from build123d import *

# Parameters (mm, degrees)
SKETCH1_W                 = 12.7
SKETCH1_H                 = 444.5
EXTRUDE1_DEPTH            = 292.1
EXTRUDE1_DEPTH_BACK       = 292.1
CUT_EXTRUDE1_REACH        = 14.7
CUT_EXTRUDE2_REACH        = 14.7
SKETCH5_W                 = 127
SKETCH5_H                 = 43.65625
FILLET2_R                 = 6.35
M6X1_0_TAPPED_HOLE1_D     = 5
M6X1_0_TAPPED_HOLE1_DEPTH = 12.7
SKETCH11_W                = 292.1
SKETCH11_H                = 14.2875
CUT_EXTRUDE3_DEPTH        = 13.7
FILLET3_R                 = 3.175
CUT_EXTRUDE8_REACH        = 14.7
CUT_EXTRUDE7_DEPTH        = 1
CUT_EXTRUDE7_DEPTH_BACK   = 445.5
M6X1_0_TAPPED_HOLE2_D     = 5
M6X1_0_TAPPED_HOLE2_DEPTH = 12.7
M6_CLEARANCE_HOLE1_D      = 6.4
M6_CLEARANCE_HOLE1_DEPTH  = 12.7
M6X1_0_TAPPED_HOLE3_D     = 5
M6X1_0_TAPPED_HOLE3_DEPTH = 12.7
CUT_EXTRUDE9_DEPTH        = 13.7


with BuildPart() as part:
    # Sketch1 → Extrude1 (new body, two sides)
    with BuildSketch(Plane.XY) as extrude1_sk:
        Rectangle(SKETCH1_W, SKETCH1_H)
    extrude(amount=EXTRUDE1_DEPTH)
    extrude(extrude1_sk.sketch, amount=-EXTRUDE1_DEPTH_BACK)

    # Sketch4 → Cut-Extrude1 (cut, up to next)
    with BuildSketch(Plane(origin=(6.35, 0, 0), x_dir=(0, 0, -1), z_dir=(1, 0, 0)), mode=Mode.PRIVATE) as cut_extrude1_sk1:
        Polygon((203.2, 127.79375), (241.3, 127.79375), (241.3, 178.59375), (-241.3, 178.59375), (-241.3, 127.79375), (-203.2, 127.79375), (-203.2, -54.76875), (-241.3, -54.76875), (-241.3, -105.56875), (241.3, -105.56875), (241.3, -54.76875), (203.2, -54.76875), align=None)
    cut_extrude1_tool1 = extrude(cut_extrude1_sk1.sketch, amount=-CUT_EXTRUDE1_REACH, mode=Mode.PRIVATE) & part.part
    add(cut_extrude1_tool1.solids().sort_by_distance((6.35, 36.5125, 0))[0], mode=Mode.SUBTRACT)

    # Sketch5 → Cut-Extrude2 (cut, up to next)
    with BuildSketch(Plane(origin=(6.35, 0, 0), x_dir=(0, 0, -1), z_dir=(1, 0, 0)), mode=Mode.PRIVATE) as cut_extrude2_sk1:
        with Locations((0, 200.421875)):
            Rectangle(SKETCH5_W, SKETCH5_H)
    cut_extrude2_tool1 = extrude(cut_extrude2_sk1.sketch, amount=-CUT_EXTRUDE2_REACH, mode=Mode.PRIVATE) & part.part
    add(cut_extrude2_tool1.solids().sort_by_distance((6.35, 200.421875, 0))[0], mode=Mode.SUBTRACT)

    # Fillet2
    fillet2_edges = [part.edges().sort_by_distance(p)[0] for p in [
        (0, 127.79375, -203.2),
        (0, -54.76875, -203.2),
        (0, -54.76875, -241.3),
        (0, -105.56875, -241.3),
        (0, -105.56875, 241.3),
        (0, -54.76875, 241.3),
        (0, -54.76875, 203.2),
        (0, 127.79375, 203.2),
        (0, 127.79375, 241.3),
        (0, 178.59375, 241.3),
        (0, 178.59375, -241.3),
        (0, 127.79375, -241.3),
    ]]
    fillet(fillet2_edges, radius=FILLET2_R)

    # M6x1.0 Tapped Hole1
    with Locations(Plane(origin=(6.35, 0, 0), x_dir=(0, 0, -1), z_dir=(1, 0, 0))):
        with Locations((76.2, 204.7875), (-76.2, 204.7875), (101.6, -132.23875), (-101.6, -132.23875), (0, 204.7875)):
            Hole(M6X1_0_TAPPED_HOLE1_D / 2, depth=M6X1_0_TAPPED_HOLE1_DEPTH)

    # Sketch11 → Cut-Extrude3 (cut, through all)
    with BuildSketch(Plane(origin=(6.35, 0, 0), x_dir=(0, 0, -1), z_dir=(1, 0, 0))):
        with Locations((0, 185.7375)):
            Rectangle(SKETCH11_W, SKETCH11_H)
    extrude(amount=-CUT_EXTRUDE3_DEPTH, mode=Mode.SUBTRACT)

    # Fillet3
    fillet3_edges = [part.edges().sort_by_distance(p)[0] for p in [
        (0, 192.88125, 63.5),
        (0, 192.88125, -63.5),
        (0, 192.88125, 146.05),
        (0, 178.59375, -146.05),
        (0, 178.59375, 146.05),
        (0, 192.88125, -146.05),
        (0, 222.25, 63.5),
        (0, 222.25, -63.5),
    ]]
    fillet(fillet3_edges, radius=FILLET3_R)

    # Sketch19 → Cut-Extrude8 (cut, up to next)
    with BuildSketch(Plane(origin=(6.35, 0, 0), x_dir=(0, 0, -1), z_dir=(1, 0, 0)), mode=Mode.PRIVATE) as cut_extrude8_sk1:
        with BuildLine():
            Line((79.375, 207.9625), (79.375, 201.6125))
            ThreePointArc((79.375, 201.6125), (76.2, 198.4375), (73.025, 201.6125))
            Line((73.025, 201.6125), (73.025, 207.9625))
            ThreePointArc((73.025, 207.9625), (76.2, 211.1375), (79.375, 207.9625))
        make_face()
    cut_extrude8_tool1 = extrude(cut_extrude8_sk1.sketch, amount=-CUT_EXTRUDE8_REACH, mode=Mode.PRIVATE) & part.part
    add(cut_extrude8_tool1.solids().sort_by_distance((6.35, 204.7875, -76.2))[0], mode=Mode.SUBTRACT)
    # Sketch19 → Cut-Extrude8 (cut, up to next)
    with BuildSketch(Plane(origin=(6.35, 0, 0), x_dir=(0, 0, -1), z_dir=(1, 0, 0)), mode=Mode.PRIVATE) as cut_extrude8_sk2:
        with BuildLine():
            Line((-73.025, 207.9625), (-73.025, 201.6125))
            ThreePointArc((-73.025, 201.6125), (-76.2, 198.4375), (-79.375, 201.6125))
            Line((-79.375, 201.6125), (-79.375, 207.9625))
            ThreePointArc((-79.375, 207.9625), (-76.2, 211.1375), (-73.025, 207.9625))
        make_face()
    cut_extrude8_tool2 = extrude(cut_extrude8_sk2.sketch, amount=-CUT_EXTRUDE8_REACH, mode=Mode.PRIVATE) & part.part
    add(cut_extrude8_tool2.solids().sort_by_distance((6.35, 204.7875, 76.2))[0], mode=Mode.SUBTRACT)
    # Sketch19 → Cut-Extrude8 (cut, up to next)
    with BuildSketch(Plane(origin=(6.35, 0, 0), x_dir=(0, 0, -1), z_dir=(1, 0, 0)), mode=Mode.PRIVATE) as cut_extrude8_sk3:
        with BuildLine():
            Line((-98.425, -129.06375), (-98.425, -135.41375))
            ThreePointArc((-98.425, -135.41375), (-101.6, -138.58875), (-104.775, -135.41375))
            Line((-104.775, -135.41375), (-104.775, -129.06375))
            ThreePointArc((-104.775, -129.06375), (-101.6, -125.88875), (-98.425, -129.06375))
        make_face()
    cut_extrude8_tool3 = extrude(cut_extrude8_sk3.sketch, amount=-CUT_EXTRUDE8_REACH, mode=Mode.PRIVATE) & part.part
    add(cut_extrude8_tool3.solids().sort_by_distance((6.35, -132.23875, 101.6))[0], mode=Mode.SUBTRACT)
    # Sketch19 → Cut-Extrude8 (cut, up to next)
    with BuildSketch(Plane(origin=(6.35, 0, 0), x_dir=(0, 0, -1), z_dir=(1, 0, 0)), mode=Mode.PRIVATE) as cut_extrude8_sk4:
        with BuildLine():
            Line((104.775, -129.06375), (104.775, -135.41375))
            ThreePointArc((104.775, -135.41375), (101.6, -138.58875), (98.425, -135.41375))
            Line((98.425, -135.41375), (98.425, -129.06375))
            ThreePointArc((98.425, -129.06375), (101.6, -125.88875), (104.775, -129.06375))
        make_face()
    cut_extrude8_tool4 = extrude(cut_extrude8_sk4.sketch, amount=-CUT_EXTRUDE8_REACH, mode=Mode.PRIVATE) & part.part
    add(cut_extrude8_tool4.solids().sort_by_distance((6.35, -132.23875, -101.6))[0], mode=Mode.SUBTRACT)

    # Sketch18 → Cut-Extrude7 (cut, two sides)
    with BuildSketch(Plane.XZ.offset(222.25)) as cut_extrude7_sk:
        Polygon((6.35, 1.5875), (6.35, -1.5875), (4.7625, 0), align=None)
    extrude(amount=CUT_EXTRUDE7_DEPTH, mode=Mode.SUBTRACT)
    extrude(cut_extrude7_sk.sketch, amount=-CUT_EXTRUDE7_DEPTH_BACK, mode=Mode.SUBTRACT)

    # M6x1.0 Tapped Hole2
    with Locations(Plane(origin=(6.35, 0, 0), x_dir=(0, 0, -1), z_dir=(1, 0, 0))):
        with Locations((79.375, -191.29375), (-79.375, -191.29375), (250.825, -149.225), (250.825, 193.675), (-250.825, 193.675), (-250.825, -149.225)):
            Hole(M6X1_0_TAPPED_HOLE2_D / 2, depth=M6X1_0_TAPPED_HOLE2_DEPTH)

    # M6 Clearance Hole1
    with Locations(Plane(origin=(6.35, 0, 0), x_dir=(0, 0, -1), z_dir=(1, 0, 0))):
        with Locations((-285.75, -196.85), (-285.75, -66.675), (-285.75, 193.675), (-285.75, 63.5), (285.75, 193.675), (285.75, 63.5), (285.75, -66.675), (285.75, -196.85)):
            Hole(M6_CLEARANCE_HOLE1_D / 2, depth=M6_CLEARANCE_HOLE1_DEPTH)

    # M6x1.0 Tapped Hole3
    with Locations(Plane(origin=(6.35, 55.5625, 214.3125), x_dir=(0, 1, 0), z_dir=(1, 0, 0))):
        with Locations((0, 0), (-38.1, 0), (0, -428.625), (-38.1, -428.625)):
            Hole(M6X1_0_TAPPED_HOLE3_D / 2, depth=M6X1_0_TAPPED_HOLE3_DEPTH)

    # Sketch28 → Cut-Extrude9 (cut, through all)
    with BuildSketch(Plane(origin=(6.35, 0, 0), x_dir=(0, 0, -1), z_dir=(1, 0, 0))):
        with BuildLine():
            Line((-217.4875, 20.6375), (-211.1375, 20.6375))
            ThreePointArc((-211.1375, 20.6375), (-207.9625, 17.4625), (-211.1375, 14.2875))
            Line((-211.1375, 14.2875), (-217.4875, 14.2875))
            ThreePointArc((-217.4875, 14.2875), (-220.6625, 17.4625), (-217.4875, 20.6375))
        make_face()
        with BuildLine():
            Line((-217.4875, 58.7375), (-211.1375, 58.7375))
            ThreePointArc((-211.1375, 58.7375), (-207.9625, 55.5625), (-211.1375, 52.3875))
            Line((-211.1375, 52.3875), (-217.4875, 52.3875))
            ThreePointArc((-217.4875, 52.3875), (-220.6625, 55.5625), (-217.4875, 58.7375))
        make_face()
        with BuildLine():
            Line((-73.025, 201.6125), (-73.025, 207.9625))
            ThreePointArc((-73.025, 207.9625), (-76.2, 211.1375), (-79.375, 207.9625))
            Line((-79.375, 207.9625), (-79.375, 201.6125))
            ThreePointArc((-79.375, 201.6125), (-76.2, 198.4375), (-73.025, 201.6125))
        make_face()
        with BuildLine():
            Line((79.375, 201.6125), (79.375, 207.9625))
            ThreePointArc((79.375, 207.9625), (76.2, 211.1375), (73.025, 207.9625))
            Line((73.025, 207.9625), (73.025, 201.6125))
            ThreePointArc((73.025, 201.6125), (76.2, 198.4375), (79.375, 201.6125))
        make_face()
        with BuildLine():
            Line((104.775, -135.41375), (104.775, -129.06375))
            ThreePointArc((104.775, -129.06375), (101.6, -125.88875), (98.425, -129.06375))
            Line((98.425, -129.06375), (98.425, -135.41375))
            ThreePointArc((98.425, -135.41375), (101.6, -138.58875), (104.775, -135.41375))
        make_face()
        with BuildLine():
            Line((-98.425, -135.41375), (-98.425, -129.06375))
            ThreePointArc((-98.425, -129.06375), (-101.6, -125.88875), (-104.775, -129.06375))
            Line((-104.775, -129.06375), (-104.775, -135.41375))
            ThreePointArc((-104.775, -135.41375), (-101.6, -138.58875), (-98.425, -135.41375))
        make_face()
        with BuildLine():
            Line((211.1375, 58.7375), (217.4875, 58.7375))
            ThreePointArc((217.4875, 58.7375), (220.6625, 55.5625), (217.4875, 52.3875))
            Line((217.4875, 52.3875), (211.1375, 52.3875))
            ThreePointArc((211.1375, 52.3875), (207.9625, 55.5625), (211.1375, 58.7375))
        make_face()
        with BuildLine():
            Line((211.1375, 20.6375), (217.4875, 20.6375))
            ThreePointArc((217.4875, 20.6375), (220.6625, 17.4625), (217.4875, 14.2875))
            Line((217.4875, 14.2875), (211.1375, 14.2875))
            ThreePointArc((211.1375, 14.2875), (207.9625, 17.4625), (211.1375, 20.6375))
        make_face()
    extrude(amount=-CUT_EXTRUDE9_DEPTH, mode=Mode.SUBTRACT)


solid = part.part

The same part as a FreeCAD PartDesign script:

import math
import FreeCAD as App
import Part
import Sketcher
from FreeCAD import Vector
Q = App.Units.Quantity


def edges_at(feature, points):
    """Names of the edges that pass closest to the given points."""
    edges = feature.Shape.Edges
    near = lambda p: min(range(len(edges)), key=lambda i: edges[i].distToShape(Part.Vertex(*p))[0])
    return sorted({f"Edge{near(p) + 1}" for p in points})

doc = App.newDocument("Part")
params = doc.addObject("Spreadsheet::Sheet", "Params")
for row, (alias, value) in enumerate([
    ("sketch1_width", "0.5 in"),
    ("sketch1_height", "17.5 in"),
    ("pad1_length", "11.5 in"),
    ("pad1_length2", "11.5 in"),
    ("sketch2_width", "2 in"),
    ("sketch2_height", "19 in"),
    ("sketch2_height2", "1.5 in"),
    ("sketch2_width2", "7.1875 in"),
    ("sketch3_height", "5 in"),
    ("sketch3_width", "1.71875 in"),
    ("fillet_radius", "0.25 in"),
    ("hole_diameter", "5 mm"),
    ("hole_depth", "0.5 in"),
    ("sketch5_height", "11.5 in"),
    ("sketch5_width", "0.5625 in"),
    ("fillet2_radius", "0.125 in"),
    ("sketch6_radius", "0.125 in"),
    ("sketch6_width", "0.25 in"),
    ("pocket4_length", "0.5 in"),
    ("sketch7_radius", "0.125 in"),
    ("sketch7_width", "0.25 in"),
    ("pocket5_length", "0.5 in"),
    ("sketch8_radius", "0.125 in"),
    ("sketch8_width", "0.25 in"),
    ("pocket6_length", "0.5 in"),
    ("sketch9_radius", "0.125 in"),
    ("sketch9_width", "0.25 in"),
    ("pocket7_length", "0.5 in"),
    ("sketch10_height", "0.125 in"),
    ("hole2_diameter", "5 mm"),
    ("hole2_depth", "0.5 in"),
    ("hole3_diameter", "6.4 mm"),
    ("hole3_depth", "0.5 in"),
    ("hole4_diameter", "5 mm"),
    ("hole4_depth", "0.5 in"),
    ("sketch14_radius", "0.125 in"),
    ("sketch14_width", "0.25 in"),
], start=1):
    params.set(f"A{row}", alias)
    params.set(f"B{row}", "=" + value)
    params.setAlias(f"B{row}", alias)

body = doc.addObject("PartDesign::Body", "Body")

sketch1 = body.newObject("Sketcher::SketchObject", "Sketch")
sketch1.AttachmentSupport = (doc.getObject("XY_Plane"), [""])
sketch1.MapMode = "FlatFace"
sketch1.addGeometry(Part.LineSegment(Vector(-6.35, 222.25, 0), Vector(-6.35, -222.25, 0)), False)
sketch1.addGeometry(Part.LineSegment(Vector(-6.35, -222.25, 0), Vector(6.35, -222.25, 0)), False)
sketch1.addGeometry(Part.LineSegment(Vector(6.35, -222.25, 0), Vector(6.35, 222.25, 0)), False)
sketch1.addGeometry(Part.LineSegment(Vector(6.35, 222.25, 0), Vector(-6.35, 222.25, 0)), False)
sketch1.addConstraint(Sketcher.Constraint("Coincident", 0, 2, 1, 1))
sketch1.addConstraint(Sketcher.Constraint("Coincident", 1, 2, 2, 1))
sketch1.addConstraint(Sketcher.Constraint("Coincident", 2, 2, 3, 1))
sketch1.addConstraint(Sketcher.Constraint("Coincident", 3, 2, 0, 1))
sketch1.addConstraint(Sketcher.Constraint("Vertical", 0))
sketch1.addConstraint(Sketcher.Constraint("Horizontal", 1))
sketch1.addConstraint(Sketcher.Constraint("Vertical", 2))
sketch1.addConstraint(Sketcher.Constraint("Horizontal", 3))
sketch1.addConstraint(Sketcher.Constraint("Symmetric", 0, 2, 2, 2, -1, 1))
sketch1.addConstraint(Sketcher.Constraint("DistanceX", 1, 1, 1, 2, Q("0.5 in")))
sketch1.addConstraint(Sketcher.Constraint("DistanceY", 0, 2, 0, 1, Q("17.5 in")))
sketch1.setExpression("Constraints[9]", "Params.sketch1_width")
sketch1.setExpression("Constraints[10]", "Params.sketch1_height")
pad1 = body.newObject("PartDesign::Pad", "Pad")
pad1.Profile = sketch1
pad1.Type = "TwoLengths"
pad1.setExpression("Length", "Params.pad1_length")
pad1.setExpression("Length2", "Params.pad1_length2")

sketch2 = body.newObject("Sketcher::SketchObject", "Sketch001")
sketch2.AttachmentSupport = (doc.getObject("YZ_Plane"), [""])
sketch2.MapMode = "FlatFace"
sketch2.AttachmentOffset = App.Placement(Vector(0, 0, 0.25 * 25.4), App.Rotation())
sketch2.addGeometry(Part.LineSegment(Vector(127.79375, -203.2, 0), Vector(127.79375, -241.3, 0)), False)
sketch2.addGeometry(Part.LineSegment(Vector(127.79375, -241.3, 0), Vector(178.59375, -241.3, 0)), False)
sketch2.addGeometry(Part.LineSegment(Vector(178.59375, -241.3, 0), Vector(178.59375, 241.3, 0)), False)
sketch2.addGeometry(Part.LineSegment(Vector(178.59375, 241.3, 0), Vector(127.79375, 241.3, 0)), False)
sketch2.addGeometry(Part.LineSegment(Vector(127.79375, 241.3, 0), Vector(127.79375, 203.2, 0)), False)
sketch2.addGeometry(Part.LineSegment(Vector(127.79375, 203.2, 0), Vector(-54.76875, 203.2, 0)), False)
sketch2.addGeometry(Part.LineSegment(Vector(-54.76875, 203.2, 0), Vector(-54.76875, 241.3, 0)), False)
sketch2.addGeometry(Part.LineSegment(Vector(-54.76875, 241.3, 0), Vector(-105.56875, 241.3, 0)), False)
sketch2.addGeometry(Part.LineSegment(Vector(-105.56875, 241.3, 0), Vector(-105.56875, -241.3, 0)), False)
sketch2.addGeometry(Part.LineSegment(Vector(-105.56875, -241.3, 0), Vector(-54.76875, -241.3, 0)), False)
sketch2.addGeometry(Part.LineSegment(Vector(-54.76875, -241.3, 0), Vector(-54.76875, -203.2, 0)), False)
sketch2.addGeometry(Part.LineSegment(Vector(-54.76875, -203.2, 0), Vector(127.79375, -203.2, 0)), False)
sketch2.addConstraint(Sketcher.Constraint("Coincident", 0, 2, 1, 1))
sketch2.addConstraint(Sketcher.Constraint("Coincident", 1, 2, 2, 1))
sketch2.addConstraint(Sketcher.Constraint("Coincident", 2, 2, 3, 1))
sketch2.addConstraint(Sketcher.Constraint("Coincident", 3, 2, 4, 1))
sketch2.addConstraint(Sketcher.Constraint("Coincident", 4, 2, 5, 1))
sketch2.addConstraint(Sketcher.Constraint("Coincident", 5, 2, 6, 1))
sketch2.addConstraint(Sketcher.Constraint("Coincident", 6, 2, 7, 1))
sketch2.addConstraint(Sketcher.Constraint("Coincident", 7, 2, 8, 1))
sketch2.addConstraint(Sketcher.Constraint("Coincident", 8, 2, 9, 1))
sketch2.addConstraint(Sketcher.Constraint("Coincident", 9, 2, 10, 1))
sketch2.addConstraint(Sketcher.Constraint("Coincident", 10, 2, 11, 1))
sketch2.addConstraint(Sketcher.Constraint("Coincident", 11, 2, 0, 1))
sketch2.addConstraint(Sketcher.Constraint("Vertical", 0))
sketch2.addConstraint(Sketcher.Constraint("Horizontal", 1))
sketch2.addConstraint(Sketcher.Constraint("Vertical", 2))
sketch2.addConstraint(Sketcher.Constraint("Horizontal", 3))
sketch2.addConstraint(Sketcher.Constraint("Vertical", 4))
sketch2.addConstraint(Sketcher.Constraint("Horizontal", 5))
sketch2.addConstraint(Sketcher.Constraint("Vertical", 6))
sketch2.addConstraint(Sketcher.Constraint("Horizontal", 7))
sketch2.addConstraint(Sketcher.Constraint("Vertical", 8))
sketch2.addConstraint(Sketcher.Constraint("Horizontal", 9))
sketch2.addConstraint(Sketcher.Constraint("Vertical", 10))
sketch2.addConstraint(Sketcher.Constraint("Horizontal", 11))
sketch2.addConstraint(Sketcher.Constraint("Symmetric", 0, 2, 3, 2, -1))
sketch2.addConstraint(Sketcher.Constraint("Symmetric", 6, 2, 9, 2, -1))
sketch2.addConstraint(Sketcher.Constraint("Horizontal", 3, 2, 6, 2))
sketch2.addConstraint(Sketcher.Constraint("Equal", 3, 7))
sketch2.addConstraint(Sketcher.Constraint("Equal", 0, 4))
sketch2.addConstraint(Sketcher.Constraint("DistanceX", 1, 1, 1, 2, Q("2 in")))
sketch2.addConstraint(Sketcher.Constraint("DistanceY", 2, 1, 2, 2, Q("19 in")))
sketch2.addConstraint(Sketcher.Constraint("DistanceY", 0, 2, 0, 1, Q("1.5 in")))
sketch2.addConstraint(Sketcher.Constraint("DistanceX", 5, 2, 5, 1, Q("7.1875 in")))
sketch2.addConstraint(Sketcher.Constraint("DistanceX", -1, 1, 0, 2, Q("5.03125 in")))
sketch2.setExpression("Constraints[29]", "Params.sketch2_width")
sketch2.setExpression("Constraints[30]", "Params.sketch2_height")
sketch2.setExpression("Constraints[31]", "Params.sketch2_height2")
sketch2.setExpression("Constraints[32]", "Params.sketch2_width2")
pocket1 = body.newObject("PartDesign::Pocket", "Pocket")
pocket1.Profile = sketch2
pocket1.Type = "UpToFirst"

sketch3 = body.newObject("Sketcher::SketchObject", "Sketch002")
sketch3.AttachmentSupport = (doc.getObject("YZ_Plane"), [""])
sketch3.MapMode = "FlatFace"
sketch3.AttachmentOffset = App.Placement(Vector(0, 0, 0.25 * 25.4), App.Rotation())
sketch3.addGeometry(Part.LineSegment(Vector(222.25, 63.5, 0), Vector(178.59375, 63.5, 0)), False)
sketch3.addGeometry(Part.LineSegment(Vector(178.59375, 63.5, 0), Vector(178.59375, -63.5, 0)), False)
sketch3.addGeometry(Part.LineSegment(Vector(178.59375, -63.5, 0), Vector(222.25, -63.5, 0)), False)
sketch3.addGeometry(Part.LineSegment(Vector(222.25, -63.5, 0), Vector(222.25, 63.5, 0)), False)
sketch3.addConstraint(Sketcher.Constraint("Coincident", 0, 2, 1, 1))
sketch3.addConstraint(Sketcher.Constraint("Coincident", 1, 2, 2, 1))
sketch3.addConstraint(Sketcher.Constraint("Coincident", 2, 2, 3, 1))
sketch3.addConstraint(Sketcher.Constraint("Coincident", 3, 2, 0, 1))
sketch3.addConstraint(Sketcher.Constraint("Horizontal", 0))
sketch3.addConstraint(Sketcher.Constraint("Vertical", 1))
sketch3.addConstraint(Sketcher.Constraint("Horizontal", 2))
sketch3.addConstraint(Sketcher.Constraint("Vertical", 3))
sketch3.addConstraint(Sketcher.Constraint("DistanceY", 1, 2, 1, 1, Q("5 in")))
sketch3.addConstraint(Sketcher.Constraint("DistanceY", -1, 1, 0, 2, Q("2.5 in")))
sketch3.addConstraint(Sketcher.Constraint("DistanceX", 0, 2, 0, 1, Q("1.71875 in")))
sketch3.addConstraint(Sketcher.Constraint("DistanceX", -1, 1, 2, 2, Q("8.75 in")))
sketch3.setExpression("Constraints[8]", "Params.sketch3_height")
sketch3.setExpression("Constraints[10]", "Params.sketch3_width")
pocket2 = body.newObject("PartDesign::Pocket", "Pocket001")
pocket2.Profile = sketch3
pocket2.Type = "UpToFirst"
doc.recompute()

fillet = body.newObject("PartDesign::Fillet", "Fillet")
fillet.Base = (pocket2, edges_at(pocket2, [
    (0, 127.794, -203.2),
    (0, -54.769, -203.2),
    (0, -54.769, -241.3),
    (0, -105.569, -241.3),
    (0, -105.569, 241.3),
    (0, -54.769, 241.3),
    (0, -54.769, 203.2),
    (0, 127.794, 203.2),
    (0, 127.794, 241.3),
    (0, 178.594, 241.3),
    (0, 178.594, -241.3),
    (0, 127.794, -241.3),
]))
fillet.setExpression("Radius", "Params.fillet_radius")

sketch4 = body.newObject("Sketcher::SketchObject", "Sketch003")
sketch4.AttachmentSupport = (doc.getObject("YZ_Plane"), [""])
sketch4.MapMode = "FlatFace"
sketch4.AttachmentOffset = App.Placement(Vector(0, 0, 0.25 * 25.4), App.Rotation())
sketch4.addGeometry(Part.Circle(Vector(204.7875, -76.2, 0), Vector(0, 0, 1), 2.5), False)
sketch4.addGeometry(Part.Circle(Vector(204.7875, 76.2, 0), Vector(0, 0, 1), 2.5), False)
sketch4.addGeometry(Part.Circle(Vector(-132.23875, -101.6, 0), Vector(0, 0, 1), 2.5), False)
sketch4.addGeometry(Part.Circle(Vector(-132.23875, 101.6, 0), Vector(0, 0, 1), 2.5), False)
sketch4.addGeometry(Part.Circle(Vector(204.7875, 0, 0), Vector(0, 0, 1), 2.5), False)
sketch4.addConstraint(Sketcher.Constraint("Equal", 0, 1))
sketch4.addConstraint(Sketcher.Constraint("Equal", 1, 2))
sketch4.addConstraint(Sketcher.Constraint("Equal", 2, 3))
sketch4.addConstraint(Sketcher.Constraint("Equal", 3, 4))
sketch4.addConstraint(Sketcher.Constraint("Symmetric", 0, 3, 1, 3, -1))
sketch4.addConstraint(Sketcher.Constraint("Symmetric", 2, 3, 3, 3, -1))
sketch4.addConstraint(Sketcher.Constraint("PointOnObject", 4, 3, -1))
sketch4.addConstraint(Sketcher.Constraint("Vertical", 1, 3, 4, 3))
sketch4.addConstraint(Sketcher.Constraint("DistanceY", 0, 3, -1, 1, Q("3 in")))
sketch4.addConstraint(Sketcher.Constraint("DistanceY", 2, 3, -1, 1, Q("4 in")))
sketch4.addConstraint(Sketcher.Constraint("Diameter", 0, 5.0))
sketch4.addConstraint(Sketcher.Constraint("DistanceX", -1, 1, 0, 3, Q("8.0625 in")))
sketch4.addConstraint(Sketcher.Constraint("DistanceX", 2, 3, -1, 1, 132.23875))
doc.recompute()
hole = body.newObject("PartDesign::Hole", "Hole")
hole.Profile = sketch4
hole.ThreadType = "None"
hole.setExpression("Diameter", "Params.hole_diameter")
hole.DepthType = "Dimension"
hole.setExpression("Depth", "Params.hole_depth")
hole.DrillPoint = "Flat"

sketch5 = body.newObject("Sketcher::SketchObject", "Sketch004")
sketch5.AttachmentSupport = (doc.getObject("YZ_Plane"), [""])
sketch5.MapMode = "FlatFace"
sketch5.AttachmentOffset = App.Placement(Vector(0, 0, 0.25 * 25.4), App.Rotation())
sketch5.addGeometry(Part.LineSegment(Vector(192.88125, 146.05, 0), Vector(178.59375, 146.05, 0)), False)
sketch5.addGeometry(Part.LineSegment(Vector(178.59375, 146.05, 0), Vector(178.59375, -146.05, 0)), False)
sketch5.addGeometry(Part.LineSegment(Vector(178.59375, -146.05, 0), Vector(192.88125, -146.05, 0)), False)
sketch5.addGeometry(Part.LineSegment(Vector(192.88125, -146.05, 0), Vector(192.88125, 146.05, 0)), False)
sketch5.addConstraint(Sketcher.Constraint("Coincident", 0, 2, 1, 1))
sketch5.addConstraint(Sketcher.Constraint("Coincident", 1, 2, 2, 1))
sketch5.addConstraint(Sketcher.Constraint("Coincident", 2, 2, 3, 1))
sketch5.addConstraint(Sketcher.Constraint("Coincident", 3, 2, 0, 1))
sketch5.addConstraint(Sketcher.Constraint("Horizontal", 0))
sketch5.addConstraint(Sketcher.Constraint("Vertical", 1))
sketch5.addConstraint(Sketcher.Constraint("Horizontal", 2))
sketch5.addConstraint(Sketcher.Constraint("Vertical", 3))
sketch5.addConstraint(Sketcher.Constraint("DistanceY", 1, 2, 1, 1, Q("11.5 in")))
sketch5.addConstraint(Sketcher.Constraint("DistanceX", 0, 2, 0, 1, Q("0.5625 in")))
sketch5.addConstraint(Sketcher.Constraint("DistanceY", -1, 1, 0, 2, Q("5.75 in")))
sketch5.addConstraint(Sketcher.Constraint("DistanceX", -1, 1, 0, 2, Q("7.03125 in")))
sketch5.setExpression("Constraints[8]", "Params.sketch5_height")
sketch5.setExpression("Constraints[9]", "Params.sketch5_width")
pocket3 = body.newObject("PartDesign::Pocket", "Pocket002")
pocket3.Profile = sketch5
pocket3.Type = "ThroughAll"
doc.recompute()

fillet2 = body.newObject("PartDesign::Fillet", "Fillet001")
fillet2.Base = (pocket3, edges_at(pocket3, [
    (0, 192.881, 63.5),
    (0, 192.881, -63.5),
    (0, 192.881, 146.05),
    (0, 178.594, -146.05),
    (0, 178.594, 146.05),
    (0, 192.881, -146.05),
    (0, 222.25, 63.5),
    (0, 222.25, -63.5),
]))
fillet2.setExpression("Radius", "Params.fillet2_radius")

sketch6 = body.newObject("Sketcher::SketchObject", "Sketch005")
sketch6.AttachmentSupport = (doc.getObject("YZ_Plane"), [""])
sketch6.MapMode = "FlatFace"
sketch6.AttachmentOffset = App.Placement(Vector(0, 0, 0.25 * 25.4), App.Rotation())
sketch6.addGeometry(Part.LineSegment(Vector(201.6125, -79.375, 0), Vector(207.9625, -79.375, 0)), False)
sketch6.addGeometry(Part.ArcOfCircle(Part.Circle(Vector(207.9625, -76.2, 0), Vector(0, 0, 1), 3.175), math.radians(-90), math.radians(90)), False)
sketch6.addGeometry(Part.LineSegment(Vector(207.9625, -73.025, 0), Vector(201.6125, -73.025, 0)), False)
sketch6.addGeometry(Part.ArcOfCircle(Part.Circle(Vector(201.6125, -76.2, 0), Vector(0, 0, 1), 3.175), math.radians(90), math.radians(270)), False)
sketch6.addConstraint(Sketcher.Constraint("Tangent", 0, 2, 1, 1))
sketch6.addConstraint(Sketcher.Constraint("Tangent", 1, 2, 2, 1))
sketch6.addConstraint(Sketcher.Constraint("Tangent", 2, 2, 3, 1))
sketch6.addConstraint(Sketcher.Constraint("Tangent", 3, 2, 0, 1))
sketch6.addConstraint(Sketcher.Constraint("Horizontal", 0))
sketch6.addConstraint(Sketcher.Constraint("Horizontal", 2))
sketch6.addConstraint(Sketcher.Constraint("DistanceY", 1, 3, -1, 1, Q("3 in")))
sketch6.addConstraint(Sketcher.Constraint("Radius", 1, Q("0.125 in")))
sketch6.addConstraint(Sketcher.Constraint("DistanceX", 0, 1, 0, 2, Q("0.25 in")))
sketch6.addConstraint(Sketcher.Constraint("DistanceX", -1, 1, 1, 3, Q("8.1875 in")))
sketch6.setExpression("Constraints[7]", "Params.sketch6_radius")
sketch6.setExpression("Constraints[8]", "Params.sketch6_width")
pocket4 = body.newObject("PartDesign::Pocket", "Pocket003")
pocket4.Profile = sketch6
pocket4.setExpression("Length", "Params.pocket4_length")

sketch7 = body.newObject("Sketcher::SketchObject", "Sketch006")
sketch7.AttachmentSupport = (doc.getObject("YZ_Plane"), [""])
sketch7.MapMode = "FlatFace"
sketch7.AttachmentOffset = App.Placement(Vector(0, 0, 0.25 * 25.4), App.Rotation())
sketch7.addGeometry(Part.LineSegment(Vector(201.6125, 73.025, 0), Vector(207.9625, 73.025, 0)), False)
sketch7.addGeometry(Part.ArcOfCircle(Part.Circle(Vector(207.9625, 76.2, 0), Vector(0, 0, 1), 3.175), math.radians(-90), math.radians(90)), False)
sketch7.addGeometry(Part.LineSegment(Vector(207.9625, 79.375, 0), Vector(201.6125, 79.375, 0)), False)
sketch7.addGeometry(Part.ArcOfCircle(Part.Circle(Vector(201.6125, 76.2, 0), Vector(0, 0, 1), 3.175), math.radians(90), math.radians(270)), False)
sketch7.addConstraint(Sketcher.Constraint("Tangent", 0, 2, 1, 1))
sketch7.addConstraint(Sketcher.Constraint("Tangent", 1, 2, 2, 1))
sketch7.addConstraint(Sketcher.Constraint("Tangent", 2, 2, 3, 1))
sketch7.addConstraint(Sketcher.Constraint("Tangent", 3, 2, 0, 1))
sketch7.addConstraint(Sketcher.Constraint("Horizontal", 0))
sketch7.addConstraint(Sketcher.Constraint("Horizontal", 2))
sketch7.addConstraint(Sketcher.Constraint("DistanceY", -1, 1, 1, 3, Q("3 in")))
sketch7.addConstraint(Sketcher.Constraint("Radius", 1, Q("0.125 in")))
sketch7.addConstraint(Sketcher.Constraint("DistanceX", 0, 1, 0, 2, Q("0.25 in")))
sketch7.addConstraint(Sketcher.Constraint("DistanceX", -1, 1, 1, 3, Q("8.1875 in")))
sketch7.setExpression("Constraints[7]", "Params.sketch7_radius")
sketch7.setExpression("Constraints[8]", "Params.sketch7_width")
pocket5 = body.newObject("PartDesign::Pocket", "Pocket004")
pocket5.Profile = sketch7
pocket5.setExpression("Length", "Params.pocket5_length")

sketch8 = body.newObject("Sketcher::SketchObject", "Sketch007")
sketch8.AttachmentSupport = (doc.getObject("YZ_Plane"), [""])
sketch8.MapMode = "FlatFace"
sketch8.AttachmentOffset = App.Placement(Vector(0, 0, 0.25 * 25.4), App.Rotation())
sketch8.addGeometry(Part.LineSegment(Vector(-135.41375, 98.425, 0), Vector(-129.06375, 98.425, 0)), False)
sketch8.addGeometry(Part.ArcOfCircle(Part.Circle(Vector(-129.06375, 101.6, 0), Vector(0, 0, 1), 3.175), math.radians(-90), math.radians(90)), False)
sketch8.addGeometry(Part.LineSegment(Vector(-129.06375, 104.775, 0), Vector(-135.41375, 104.775, 0)), False)
sketch8.addGeometry(Part.ArcOfCircle(Part.Circle(Vector(-135.41375, 101.6, 0), Vector(0, 0, 1), 3.175), math.radians(90), math.radians(270)), False)
sketch8.addConstraint(Sketcher.Constraint("Tangent", 0, 2, 1, 1))
sketch8.addConstraint(Sketcher.Constraint("Tangent", 1, 2, 2, 1))
sketch8.addConstraint(Sketcher.Constraint("Tangent", 2, 2, 3, 1))
sketch8.addConstraint(Sketcher.Constraint("Tangent", 3, 2, 0, 1))
sketch8.addConstraint(Sketcher.Constraint("Horizontal", 0))
sketch8.addConstraint(Sketcher.Constraint("Horizontal", 2))
sketch8.addConstraint(Sketcher.Constraint("DistanceY", -1, 1, 1, 3, Q("4 in")))
sketch8.addConstraint(Sketcher.Constraint("Radius", 1, Q("0.125 in")))
sketch8.addConstraint(Sketcher.Constraint("DistanceX", 0, 1, 0, 2, Q("0.25 in")))
sketch8.addConstraint(Sketcher.Constraint("DistanceX", 1, 3, -1, 1, 129.06375))
sketch8.setExpression("Constraints[7]", "Params.sketch8_radius")
sketch8.setExpression("Constraints[8]", "Params.sketch8_width")
pocket6 = body.newObject("PartDesign::Pocket", "Pocket005")
pocket6.Profile = sketch8
pocket6.setExpression("Length", "Params.pocket6_length")

sketch9 = body.newObject("Sketcher::SketchObject", "Sketch008")
sketch9.AttachmentSupport = (doc.getObject("YZ_Plane"), [""])
sketch9.MapMode = "FlatFace"
sketch9.AttachmentOffset = App.Placement(Vector(0, 0, 0.25 * 25.4), App.Rotation())
sketch9.addGeometry(Part.LineSegment(Vector(-135.41375, -104.775, 0), Vector(-129.06375, -104.775, 0)), False)
sketch9.addGeometry(Part.ArcOfCircle(Part.Circle(Vector(-129.06375, -101.6, 0), Vector(0, 0, 1), 3.175), math.radians(-90), math.radians(90)), False)
sketch9.addGeometry(Part.LineSegment(Vector(-129.06375, -98.425, 0), Vector(-135.41375, -98.425, 0)), False)
sketch9.addGeometry(Part.ArcOfCircle(Part.Circle(Vector(-135.41375, -101.6, 0), Vector(0, 0, 1), 3.175), math.radians(90), math.radians(270)), False)
sketch9.addConstraint(Sketcher.Constraint("Tangent", 0, 2, 1, 1))
sketch9.addConstraint(Sketcher.Constraint("Tangent", 1, 2, 2, 1))
sketch9.addConstraint(Sketcher.Constraint("Tangent", 2, 2, 3, 1))
sketch9.addConstraint(Sketcher.Constraint("Tangent", 3, 2, 0, 1))
sketch9.addConstraint(Sketcher.Constraint("Horizontal", 0))
sketch9.addConstraint(Sketcher.Constraint("Horizontal", 2))
sketch9.addConstraint(Sketcher.Constraint("DistanceY", 1, 3, -1, 1, Q("4 in")))
sketch9.addConstraint(Sketcher.Constraint("Radius", 1, Q("0.125 in")))
sketch9.addConstraint(Sketcher.Constraint("DistanceX", 0, 1, 0, 2, Q("0.25 in")))
sketch9.addConstraint(Sketcher.Constraint("DistanceX", 1, 3, -1, 1, 129.06375))
sketch9.setExpression("Constraints[7]", "Params.sketch9_radius")
sketch9.setExpression("Constraints[8]", "Params.sketch9_width")
pocket7 = body.newObject("PartDesign::Pocket", "Pocket006")
pocket7.Profile = sketch9
pocket7.setExpression("Length", "Params.pocket7_length")

sketch10 = body.newObject("Sketcher::SketchObject", "Sketch009")
sketch10.AttachmentSupport = (doc.getObject("XZ_Plane"), [""])
sketch10.MapMode = "FlatFace"
sketch10.AttachmentOffset = App.Placement(Vector(0, 0, 8.75 * 25.4), App.Rotation())
sketch10.addGeometry(Part.LineSegment(Vector(6.35, -1.5875, 0), Vector(6.35, 1.5875, 0)), False)
sketch10.addGeometry(Part.LineSegment(Vector(6.35, 1.5875, 0), Vector(4.7625, 0, 0)), False)
sketch10.addGeometry(Part.LineSegment(Vector(4.7625, 0, 0), Vector(6.35, -1.5875, 0)), False)
sketch10.addConstraint(Sketcher.Constraint("Coincident", 0, 2, 1, 1))
sketch10.addConstraint(Sketcher.Constraint("Coincident", 1, 2, 2, 1))
sketch10.addConstraint(Sketcher.Constraint("Coincident", 2, 2, 0, 1))
sketch10.addConstraint(Sketcher.Constraint("Vertical", 0))
sketch10.addConstraint(Sketcher.Constraint("PointOnObject", 1, 2, -1))
sketch10.addConstraint(Sketcher.Constraint("Perpendicular", 1, 2))
sketch10.addConstraint(Sketcher.Constraint("Equal", 1, 2))
sketch10.addConstraint(Sketcher.Constraint("DistanceY", 0, 1, 0, 2, Q("0.125 in")))
sketch10.addConstraint(Sketcher.Constraint("DistanceX", -1, 1, 0, 2, Q("0.25 in")))
sketch10.setExpression("Constraints[7]", "Params.sketch10_height")
pocket8 = body.newObject("PartDesign::Pocket", "Pocket007")
pocket8.Profile = sketch10
pocket8.Type = "ThroughAll"
pocket8.Midplane = True

sketch11 = body.newObject("Sketcher::SketchObject", "Sketch010")
sketch11.AttachmentSupport = (doc.getObject("YZ_Plane"), [""])
sketch11.MapMode = "FlatFace"
sketch11.AttachmentOffset = App.Placement(Vector(0, 0, 0.25 * 25.4), App.Rotation())
sketch11.addGeometry(Part.Circle(Vector(-191.29375, -79.375, 0), Vector(0, 0, 1), 2.5), False)
sketch11.addGeometry(Part.Circle(Vector(-191.29375, 79.375, 0), Vector(0, 0, 1), 2.5), False)
sketch11.addGeometry(Part.Circle(Vector(-149.225, -250.825, 0), Vector(0, 0, 1), 2.5), False)
sketch11.addGeometry(Part.Circle(Vector(193.675, -250.825, 0), Vector(0, 0, 1), 2.5), False)
sketch11.addGeometry(Part.Circle(Vector(193.675, 250.825, 0), Vector(0, 0, 1), 2.5), False)
sketch11.addGeometry(Part.Circle(Vector(-149.225, 250.825, 0), Vector(0, 0, 1), 2.5), False)
sketch11.addConstraint(Sketcher.Constraint("Equal", 0, 1))
sketch11.addConstraint(Sketcher.Constraint("Equal", 1, 2))
sketch11.addConstraint(Sketcher.Constraint("Equal", 2, 3))
sketch11.addConstraint(Sketcher.Constraint("Equal", 3, 4))
sketch11.addConstraint(Sketcher.Constraint("Equal", 4, 5))
sketch11.addConstraint(Sketcher.Constraint("Symmetric", 0, 3, 1, 3, -1))
sketch11.addConstraint(Sketcher.Constraint("Symmetric", 3, 3, 4, 3, -1))
sketch11.addConstraint(Sketcher.Constraint("Symmetric", 2, 3, 5, 3, -1))
sketch11.addConstraint(Sketcher.Constraint("Horizontal", 2, 3, 3, 3))
sketch11.addConstraint(Sketcher.Constraint("DistanceY", 2, 3, 1, 3, Q("13 in")))
sketch11.addConstraint(Sketcher.Constraint("DistanceX", 2, 3, 3, 3, Q("13.5 in")))
sketch11.addConstraint(Sketcher.Constraint("Diameter", 0, 5.0))
sketch11.addConstraint(Sketcher.Constraint("DistanceY", 0, 3, 1, 3, Q("6.25 in")))
sketch11.addConstraint(Sketcher.Constraint("DistanceX", 0, 3, -1, 1, Q("7.53125 in")))
sketch11.addConstraint(Sketcher.Constraint("DistanceX", 2, 3, -1, 1, Q("5.875 in")))
doc.recompute()
hole2 = body.newObject("PartDesign::Hole", "Hole001")
hole2.Profile = sketch11
hole2.ThreadType = "None"
hole2.setExpression("Diameter", "Params.hole2_diameter")
hole2.DepthType = "Dimension"
hole2.setExpression("Depth", "Params.hole2_depth")
hole2.DrillPoint = "Flat"

sketch12 = body.newObject("Sketcher::SketchObject", "Sketch011")
sketch12.AttachmentSupport = (doc.getObject("YZ_Plane"), [""])
sketch12.MapMode = "FlatFace"
sketch12.AttachmentOffset = App.Placement(Vector(0, 0, 0.25 * 25.4), App.Rotation())
sketch12.addGeometry(Part.Circle(Vector(-196.85, 285.75, 0), Vector(0, 0, 1), 3.2), False)
sketch12.addGeometry(Part.Circle(Vector(-66.675, 285.75, 0), Vector(0, 0, 1), 3.2), False)
sketch12.addGeometry(Part.Circle(Vector(193.675, 285.75, 0), Vector(0, 0, 1), 3.2), False)
sketch12.addGeometry(Part.Circle(Vector(63.5, 285.75, 0), Vector(0, 0, 1), 3.2), False)
sketch12.addGeometry(Part.Circle(Vector(193.675, -285.75, 0), Vector(0, 0, 1), 3.2), False)
sketch12.addGeometry(Part.Circle(Vector(63.5, -285.75, 0), Vector(0, 0, 1), 3.2), False)
sketch12.addGeometry(Part.Circle(Vector(-66.675, -285.75, 0), Vector(0, 0, 1), 3.2), False)
sketch12.addGeometry(Part.Circle(Vector(-196.85, -285.75, 0), Vector(0, 0, 1), 3.2), False)
sketch12.addConstraint(Sketcher.Constraint("Equal", 0, 1))
sketch12.addConstraint(Sketcher.Constraint("Equal", 1, 2))
sketch12.addConstraint(Sketcher.Constraint("Equal", 2, 3))
sketch12.addConstraint(Sketcher.Constraint("Equal", 3, 4))
sketch12.addConstraint(Sketcher.Constraint("Equal", 4, 5))
sketch12.addConstraint(Sketcher.Constraint("Equal", 5, 6))
sketch12.addConstraint(Sketcher.Constraint("Equal", 6, 7))
sketch12.addConstraint(Sketcher.Constraint("Symmetric", 2, 3, 4, 3, -1))
sketch12.addConstraint(Sketcher.Constraint("Symmetric", 3, 3, 5, 3, -1))
sketch12.addConstraint(Sketcher.Constraint("Symmetric", 1, 3, 6, 3, -1))
sketch12.addConstraint(Sketcher.Constraint("Symmetric", 0, 3, 7, 3, -1))
sketch12.addConstraint(Sketcher.Constraint("Horizontal", 0, 3, 1, 3))
sketch12.addConstraint(Sketcher.Constraint("Horizontal", 1, 3, 2, 3))
sketch12.addConstraint(Sketcher.Constraint("Horizontal", 2, 3, 3, 3))
sketch12.addConstraint(Sketcher.Constraint("DistanceX", -1, 1, 3, 3, Q("2.5 in")))
sketch12.addConstraint(Sketcher.Constraint("DistanceY", 4, 3, 2, 3, Q("22.5 in")))
sketch12.addConstraint(Sketcher.Constraint("Diameter", 0, 6.4))
sketch12.addConstraint(Sketcher.Constraint("DistanceX", 0, 3, -1, 1, Q("7.75 in")))
sketch12.addConstraint(Sketcher.Constraint("DistanceX", 1, 3, 2, 3, Q("10.25 in")))
sketch12.addConstraint(Sketcher.Constraint("DistanceX", 1, 3, -1, 1, Q("2.625 in")))
doc.recompute()
hole3 = body.newObject("PartDesign::Hole", "Hole002")
hole3.Profile = sketch12
hole3.ThreadType = "None"
hole3.setExpression("Diameter", "Params.hole3_diameter")
hole3.DepthType = "Dimension"
hole3.setExpression("Depth", "Params.hole3_depth")
hole3.DrillPoint = "Flat"

sketch13 = body.newObject("Sketcher::SketchObject", "Sketch012")
sketch13.AttachmentSupport = (doc.getObject("YZ_Plane"), [""])
sketch13.MapMode = "FlatFace"
sketch13.AttachmentOffset = App.Placement(Vector(0, 0, 0.25 * 25.4), App.Rotation())
sketch13.addGeometry(Part.Circle(Vector(55.5625, 214.3125, 0), Vector(0, 0, 1), 2.5), False)
sketch13.addGeometry(Part.Circle(Vector(17.4625, 214.3125, 0), Vector(0, 0, 1), 2.5), False)
sketch13.addGeometry(Part.Circle(Vector(55.5625, -214.3125, 0), Vector(0, 0, 1), 2.5), False)
sketch13.addGeometry(Part.Circle(Vector(17.4625, -214.3125, 0), Vector(0, 0, 1), 2.5), False)
sketch13.addConstraint(Sketcher.Constraint("Equal", 0, 1))
sketch13.addConstraint(Sketcher.Constraint("Equal", 1, 2))
sketch13.addConstraint(Sketcher.Constraint("Equal", 2, 3))
sketch13.addConstraint(Sketcher.Constraint("Symmetric", 0, 3, 2, 3, -1))
sketch13.addConstraint(Sketcher.Constraint("Symmetric", 1, 3, 3, 3, -1))
sketch13.addConstraint(Sketcher.Constraint("Horizontal", 0, 3, 1, 3))
sketch13.addConstraint(Sketcher.Constraint("DistanceX", 1, 3, 0, 3, Q("1.5 in")))
sketch13.addConstraint(Sketcher.Constraint("Diameter", 0, 5.0))
sketch13.addConstraint(Sketcher.Constraint("DistanceX", -1, 1, 0, 3, Q("2.1875 in")))
sketch13.addConstraint(Sketcher.Constraint("DistanceY", -1, 1, 0, 3, Q("8.4375 in")))
doc.recompute()
hole4 = body.newObject("PartDesign::Hole", "Hole003")
hole4.Profile = sketch13
hole4.ThreadType = "None"
hole4.setExpression("Diameter", "Params.hole4_diameter")
hole4.DepthType = "Dimension"
hole4.setExpression("Depth", "Params.hole4_depth")
hole4.DrillPoint = "Flat"

sketch14 = body.newObject("Sketcher::SketchObject", "Sketch013")
sketch14.AttachmentSupport = (doc.getObject("YZ_Plane"), [""])
sketch14.MapMode = "FlatFace"
sketch14.AttachmentOffset = App.Placement(Vector(0, 0, 0.25 * 25.4), App.Rotation())
sketch14.addGeometry(Part.LineSegment(Vector(20.6375, 211.1375, 0), Vector(20.6375, 217.4875, 0)), False)
sketch14.addGeometry(Part.ArcOfCircle(Part.Circle(Vector(17.4625, 217.4875, 0), Vector(0, 0, 1), 3.175), math.radians(0), math.radians(180)), False)
sketch14.addGeometry(Part.LineSegment(Vector(14.2875, 217.4875, 0), Vector(14.2875, 211.1375, 0)), False)
sketch14.addGeometry(Part.ArcOfCircle(Part.Circle(Vector(17.4625, 211.1375, 0), Vector(0, 0, 1), 3.175), math.radians(180), math.radians(360)), False)
sketch14.addGeometry(Part.LineSegment(Vector(58.7375, 211.1375, 0), Vector(58.7375, 217.4875, 0)), False)
sketch14.addGeometry(Part.ArcOfCircle(Part.Circle(Vector(55.5625, 217.4875, 0), Vector(0, 0, 1), 3.175), math.radians(0), math.radians(180)), False)
sketch14.addGeometry(Part.LineSegment(Vector(52.3875, 217.4875, 0), Vector(52.3875, 211.1375, 0)), False)
sketch14.addGeometry(Part.ArcOfCircle(Part.Circle(Vector(55.5625, 211.1375, 0), Vector(0, 0, 1), 3.175), math.radians(180), math.radians(360)), False)
sketch14.addGeometry(Part.LineSegment(Vector(201.6125, 73.025, 0), Vector(207.9625, 73.025, 0)), False)
sketch14.addGeometry(Part.ArcOfCircle(Part.Circle(Vector(207.9625, 76.2, 0), Vector(0, 0, 1), 3.175), math.radians(-90), math.radians(90)), False)
sketch14.addGeometry(Part.LineSegment(Vector(207.9625, 79.375, 0), Vector(201.6125, 79.375, 0)), False)
sketch14.addGeometry(Part.ArcOfCircle(Part.Circle(Vector(201.6125, 76.2, 0), Vector(0, 0, 1), 3.175), math.radians(90), math.radians(270)), False)
sketch14.addGeometry(Part.LineSegment(Vector(201.6125, -79.375, 0), Vector(207.9625, -79.375, 0)), False)
sketch14.addGeometry(Part.ArcOfCircle(Part.Circle(Vector(207.9625, -76.2, 0), Vector(0, 0, 1), 3.175), math.radians(-90), math.radians(90)), False)
sketch14.addGeometry(Part.LineSegment(Vector(207.9625, -73.025, 0), Vector(201.6125, -73.025, 0)), False)
sketch14.addGeometry(Part.ArcOfCircle(Part.Circle(Vector(201.6125, -76.2, 0), Vector(0, 0, 1), 3.175), math.radians(90), math.radians(270)), False)
sketch14.addGeometry(Part.LineSegment(Vector(-135.41375, -104.775, 0), Vector(-129.06375, -104.775, 0)), False)
sketch14.addGeometry(Part.ArcOfCircle(Part.Circle(Vector(-129.06375, -101.6, 0), Vector(0, 0, 1), 3.175), math.radians(-90), math.radians(90)), False)
sketch14.addGeometry(Part.LineSegment(Vector(-129.06375, -98.425, 0), Vector(-135.41375, -98.425, 0)), False)
sketch14.addGeometry(Part.ArcOfCircle(Part.Circle(Vector(-135.41375, -101.6, 0), Vector(0, 0, 1), 3.175), math.radians(90), math.radians(270)), False)
sketch14.addGeometry(Part.LineSegment(Vector(-135.41375, 98.425, 0), Vector(-129.06375, 98.425, 0)), False)
sketch14.addGeometry(Part.ArcOfCircle(Part.Circle(Vector(-129.06375, 101.6, 0), Vector(0, 0, 1), 3.175), math.radians(-90), math.radians(90)), False)
sketch14.addGeometry(Part.LineSegment(Vector(-129.06375, 104.775, 0), Vector(-135.41375, 104.775, 0)), False)
sketch14.addGeometry(Part.ArcOfCircle(Part.Circle(Vector(-135.41375, 101.6, 0), Vector(0, 0, 1), 3.175), math.radians(90), math.radians(270)), False)
sketch14.addGeometry(Part.LineSegment(Vector(58.7375, -217.4875, 0), Vector(58.7375, -211.1375, 0)), False)
sketch14.addGeometry(Part.ArcOfCircle(Part.Circle(Vector(55.5625, -211.1375, 0), Vector(0, 0, 1), 3.175), math.radians(0), math.radians(180)), False)
sketch14.addGeometry(Part.LineSegment(Vector(52.3875, -211.1375, 0), Vector(52.3875, -217.4875, 0)), False)
sketch14.addGeometry(Part.ArcOfCircle(Part.Circle(Vector(55.5625, -217.4875, 0), Vector(0, 0, 1), 3.175), math.radians(180), math.radians(360)), False)
sketch14.addGeometry(Part.LineSegment(Vector(20.6375, -217.4875, 0), Vector(20.6375, -211.1375, 0)), False)
sketch14.addGeometry(Part.ArcOfCircle(Part.Circle(Vector(17.4625, -211.1375, 0), Vector(0, 0, 1), 3.175), math.radians(0), math.radians(180)), False)
sketch14.addGeometry(Part.LineSegment(Vector(14.2875, -211.1375, 0), Vector(14.2875, -217.4875, 0)), False)
sketch14.addGeometry(Part.ArcOfCircle(Part.Circle(Vector(17.4625, -217.4875, 0), Vector(0, 0, 1), 3.175), math.radians(180), math.radians(360)), False)
sketch14.addConstraint(Sketcher.Constraint("Tangent", 0, 2, 1, 1))
sketch14.addConstraint(Sketcher.Constraint("Tangent", 1, 2, 2, 1))
sketch14.addConstraint(Sketcher.Constraint("Tangent", 2, 2, 3, 1))
sketch14.addConstraint(Sketcher.Constraint("Tangent", 3, 2, 0, 1))
sketch14.addConstraint(Sketcher.Constraint("Tangent", 4, 2, 5, 1))
sketch14.addConstraint(Sketcher.Constraint("Tangent", 5, 2, 6, 1))
sketch14.addConstraint(Sketcher.Constraint("Tangent", 6, 2, 7, 1))
sketch14.addConstraint(Sketcher.Constraint("Tangent", 7, 2, 4, 1))
sketch14.addConstraint(Sketcher.Constraint("Tangent", 8, 2, 9, 1))
sketch14.addConstraint(Sketcher.Constraint("Tangent", 9, 2, 10, 1))
sketch14.addConstraint(Sketcher.Constraint("Tangent", 10, 2, 11, 1))
sketch14.addConstraint(Sketcher.Constraint("Tangent", 11, 2, 8, 1))
sketch14.addConstraint(Sketcher.Constraint("Tangent", 12, 2, 13, 1))
sketch14.addConstraint(Sketcher.Constraint("Tangent", 13, 2, 14, 1))
sketch14.addConstraint(Sketcher.Constraint("Tangent", 14, 2, 15, 1))
sketch14.addConstraint(Sketcher.Constraint("Tangent", 15, 2, 12, 1))
sketch14.addConstraint(Sketcher.Constraint("Tangent", 16, 2, 17, 1))
sketch14.addConstraint(Sketcher.Constraint("Tangent", 17, 2, 18, 1))
sketch14.addConstraint(Sketcher.Constraint("Tangent", 18, 2, 19, 1))
sketch14.addConstraint(Sketcher.Constraint("Tangent", 19, 2, 16, 1))
sketch14.addConstraint(Sketcher.Constraint("Tangent", 20, 2, 21, 1))
sketch14.addConstraint(Sketcher.Constraint("Tangent", 21, 2, 22, 1))
sketch14.addConstraint(Sketcher.Constraint("Tangent", 22, 2, 23, 1))
sketch14.addConstraint(Sketcher.Constraint("Tangent", 23, 2, 20, 1))
sketch14.addConstraint(Sketcher.Constraint("Tangent", 24, 2, 25, 1))
sketch14.addConstraint(Sketcher.Constraint("Tangent", 25, 2, 26, 1))
sketch14.addConstraint(Sketcher.Constraint("Tangent", 26, 2, 27, 1))
sketch14.addConstraint(Sketcher.Constraint("Tangent", 27, 2, 24, 1))
sketch14.addConstraint(Sketcher.Constraint("Tangent", 28, 2, 29, 1))
sketch14.addConstraint(Sketcher.Constraint("Tangent", 29, 2, 30, 1))
sketch14.addConstraint(Sketcher.Constraint("Tangent", 30, 2, 31, 1))
sketch14.addConstraint(Sketcher.Constraint("Tangent", 31, 2, 28, 1))
sketch14.addConstraint(Sketcher.Constraint("Vertical", 0))
sketch14.addConstraint(Sketcher.Constraint("Vertical", 2))
sketch14.addConstraint(Sketcher.Constraint("Vertical", 4))
sketch14.addConstraint(Sketcher.Constraint("Vertical", 6))
sketch14.addConstraint(Sketcher.Constraint("Horizontal", 8))
sketch14.addConstraint(Sketcher.Constraint("Horizontal", 10))
sketch14.addConstraint(Sketcher.Constraint("Horizontal", 12))
sketch14.addConstraint(Sketcher.Constraint("Horizontal", 14))
sketch14.addConstraint(Sketcher.Constraint("Horizontal", 16))
sketch14.addConstraint(Sketcher.Constraint("Horizontal", 18))
sketch14.addConstraint(Sketcher.Constraint("Horizontal", 20))
sketch14.addConstraint(Sketcher.Constraint("Horizontal", 22))
sketch14.addConstraint(Sketcher.Constraint("Vertical", 24))
sketch14.addConstraint(Sketcher.Constraint("Vertical", 26))
sketch14.addConstraint(Sketcher.Constraint("Vertical", 28))
sketch14.addConstraint(Sketcher.Constraint("Vertical", 30))
sketch14.addConstraint(Sketcher.Constraint("Equal", 3, 5))
sketch14.addConstraint(Sketcher.Constraint("Equal", 7, 9))
sketch14.addConstraint(Sketcher.Constraint("Equal", 11, 13))
sketch14.addConstraint(Sketcher.Constraint("Equal", 15, 17))
sketch14.addConstraint(Sketcher.Constraint("Equal", 19, 21))
sketch14.addConstraint(Sketcher.Constraint("Equal", 23, 25))
sketch14.addConstraint(Sketcher.Constraint("Equal", 27, 29))
sketch14.addConstraint(Sketcher.Constraint("Symmetric", 9, 3, 13, 3, -1))
sketch14.addConstraint(Sketcher.Constraint("Symmetric", 17, 3, 21, 3, -1))
sketch14.addConstraint(Sketcher.Constraint("Symmetric", 7, 3, 25, 3, -1))
sketch14.addConstraint(Sketcher.Constraint("Symmetric", 3, 3, 29, 3, -1))
sketch14.addConstraint(Sketcher.Constraint("Horizontal", 1, 3, 5, 3))
sketch14.addConstraint(Sketcher.Constraint("Horizontal", 3, 3, 7, 3))
sketch14.addConstraint(Sketcher.Constraint("Horizontal", 27, 3, 31, 3))
sketch14.addConstraint(Sketcher.Constraint("Vertical", 11, 3, 15, 3))
sketch14.addConstraint(Sketcher.Constraint("Vertical", 19, 3, 23, 3))
sketch14.addConstraint(Sketcher.Constraint("Equal", 14, 16))
sketch14.addConstraint(Sketcher.Constraint("Equal", 22, 0))
sketch14.addConstraint(Sketcher.Constraint("Equal", 6, 24))
sketch14.addConstraint(Sketcher.Constraint("DistanceY", -1, 1, 9, 3, Q("3 in")))
sketch14.addConstraint(Sketcher.Constraint("DistanceY", 17, 3, -1, 1, Q("4 in")))
sketch14.addConstraint(Sketcher.Constraint("Radius", 1, Q("0.125 in")))
sketch14.addConstraint(Sketcher.Constraint("DistanceX", 7, 3, 9, 3, Q("6 in")))
sketch14.addConstraint(Sketcher.Constraint("DistanceX", 8, 1, 8, 2, Q("0.25 in")))
sketch14.addConstraint(Sketcher.Constraint("DistanceX", 1, 3, 5, 3, Q("1.5 in")))
sketch14.addConstraint(Sketcher.Constraint("DistanceX", -1, 1, 1, 3, Q("0.6875 in")))
sketch14.addConstraint(Sketcher.Constraint("DistanceY", -1, 1, 1, 3, Q("8.5625 in")))
sketch14.addConstraint(Sketcher.Constraint("DistanceX", 17, 3, -1, 1, 129.06375))
sketch14.setExpression("Constraints[69]", "Params.sketch14_radius")
sketch14.setExpression("Constraints[71]", "Params.sketch14_width")
pocket9 = body.newObject("PartDesign::Pocket", "Pocket008")
pocket9.Profile = sketch14
pocket9.Type = "ThroughAll"

doc.recompute()
